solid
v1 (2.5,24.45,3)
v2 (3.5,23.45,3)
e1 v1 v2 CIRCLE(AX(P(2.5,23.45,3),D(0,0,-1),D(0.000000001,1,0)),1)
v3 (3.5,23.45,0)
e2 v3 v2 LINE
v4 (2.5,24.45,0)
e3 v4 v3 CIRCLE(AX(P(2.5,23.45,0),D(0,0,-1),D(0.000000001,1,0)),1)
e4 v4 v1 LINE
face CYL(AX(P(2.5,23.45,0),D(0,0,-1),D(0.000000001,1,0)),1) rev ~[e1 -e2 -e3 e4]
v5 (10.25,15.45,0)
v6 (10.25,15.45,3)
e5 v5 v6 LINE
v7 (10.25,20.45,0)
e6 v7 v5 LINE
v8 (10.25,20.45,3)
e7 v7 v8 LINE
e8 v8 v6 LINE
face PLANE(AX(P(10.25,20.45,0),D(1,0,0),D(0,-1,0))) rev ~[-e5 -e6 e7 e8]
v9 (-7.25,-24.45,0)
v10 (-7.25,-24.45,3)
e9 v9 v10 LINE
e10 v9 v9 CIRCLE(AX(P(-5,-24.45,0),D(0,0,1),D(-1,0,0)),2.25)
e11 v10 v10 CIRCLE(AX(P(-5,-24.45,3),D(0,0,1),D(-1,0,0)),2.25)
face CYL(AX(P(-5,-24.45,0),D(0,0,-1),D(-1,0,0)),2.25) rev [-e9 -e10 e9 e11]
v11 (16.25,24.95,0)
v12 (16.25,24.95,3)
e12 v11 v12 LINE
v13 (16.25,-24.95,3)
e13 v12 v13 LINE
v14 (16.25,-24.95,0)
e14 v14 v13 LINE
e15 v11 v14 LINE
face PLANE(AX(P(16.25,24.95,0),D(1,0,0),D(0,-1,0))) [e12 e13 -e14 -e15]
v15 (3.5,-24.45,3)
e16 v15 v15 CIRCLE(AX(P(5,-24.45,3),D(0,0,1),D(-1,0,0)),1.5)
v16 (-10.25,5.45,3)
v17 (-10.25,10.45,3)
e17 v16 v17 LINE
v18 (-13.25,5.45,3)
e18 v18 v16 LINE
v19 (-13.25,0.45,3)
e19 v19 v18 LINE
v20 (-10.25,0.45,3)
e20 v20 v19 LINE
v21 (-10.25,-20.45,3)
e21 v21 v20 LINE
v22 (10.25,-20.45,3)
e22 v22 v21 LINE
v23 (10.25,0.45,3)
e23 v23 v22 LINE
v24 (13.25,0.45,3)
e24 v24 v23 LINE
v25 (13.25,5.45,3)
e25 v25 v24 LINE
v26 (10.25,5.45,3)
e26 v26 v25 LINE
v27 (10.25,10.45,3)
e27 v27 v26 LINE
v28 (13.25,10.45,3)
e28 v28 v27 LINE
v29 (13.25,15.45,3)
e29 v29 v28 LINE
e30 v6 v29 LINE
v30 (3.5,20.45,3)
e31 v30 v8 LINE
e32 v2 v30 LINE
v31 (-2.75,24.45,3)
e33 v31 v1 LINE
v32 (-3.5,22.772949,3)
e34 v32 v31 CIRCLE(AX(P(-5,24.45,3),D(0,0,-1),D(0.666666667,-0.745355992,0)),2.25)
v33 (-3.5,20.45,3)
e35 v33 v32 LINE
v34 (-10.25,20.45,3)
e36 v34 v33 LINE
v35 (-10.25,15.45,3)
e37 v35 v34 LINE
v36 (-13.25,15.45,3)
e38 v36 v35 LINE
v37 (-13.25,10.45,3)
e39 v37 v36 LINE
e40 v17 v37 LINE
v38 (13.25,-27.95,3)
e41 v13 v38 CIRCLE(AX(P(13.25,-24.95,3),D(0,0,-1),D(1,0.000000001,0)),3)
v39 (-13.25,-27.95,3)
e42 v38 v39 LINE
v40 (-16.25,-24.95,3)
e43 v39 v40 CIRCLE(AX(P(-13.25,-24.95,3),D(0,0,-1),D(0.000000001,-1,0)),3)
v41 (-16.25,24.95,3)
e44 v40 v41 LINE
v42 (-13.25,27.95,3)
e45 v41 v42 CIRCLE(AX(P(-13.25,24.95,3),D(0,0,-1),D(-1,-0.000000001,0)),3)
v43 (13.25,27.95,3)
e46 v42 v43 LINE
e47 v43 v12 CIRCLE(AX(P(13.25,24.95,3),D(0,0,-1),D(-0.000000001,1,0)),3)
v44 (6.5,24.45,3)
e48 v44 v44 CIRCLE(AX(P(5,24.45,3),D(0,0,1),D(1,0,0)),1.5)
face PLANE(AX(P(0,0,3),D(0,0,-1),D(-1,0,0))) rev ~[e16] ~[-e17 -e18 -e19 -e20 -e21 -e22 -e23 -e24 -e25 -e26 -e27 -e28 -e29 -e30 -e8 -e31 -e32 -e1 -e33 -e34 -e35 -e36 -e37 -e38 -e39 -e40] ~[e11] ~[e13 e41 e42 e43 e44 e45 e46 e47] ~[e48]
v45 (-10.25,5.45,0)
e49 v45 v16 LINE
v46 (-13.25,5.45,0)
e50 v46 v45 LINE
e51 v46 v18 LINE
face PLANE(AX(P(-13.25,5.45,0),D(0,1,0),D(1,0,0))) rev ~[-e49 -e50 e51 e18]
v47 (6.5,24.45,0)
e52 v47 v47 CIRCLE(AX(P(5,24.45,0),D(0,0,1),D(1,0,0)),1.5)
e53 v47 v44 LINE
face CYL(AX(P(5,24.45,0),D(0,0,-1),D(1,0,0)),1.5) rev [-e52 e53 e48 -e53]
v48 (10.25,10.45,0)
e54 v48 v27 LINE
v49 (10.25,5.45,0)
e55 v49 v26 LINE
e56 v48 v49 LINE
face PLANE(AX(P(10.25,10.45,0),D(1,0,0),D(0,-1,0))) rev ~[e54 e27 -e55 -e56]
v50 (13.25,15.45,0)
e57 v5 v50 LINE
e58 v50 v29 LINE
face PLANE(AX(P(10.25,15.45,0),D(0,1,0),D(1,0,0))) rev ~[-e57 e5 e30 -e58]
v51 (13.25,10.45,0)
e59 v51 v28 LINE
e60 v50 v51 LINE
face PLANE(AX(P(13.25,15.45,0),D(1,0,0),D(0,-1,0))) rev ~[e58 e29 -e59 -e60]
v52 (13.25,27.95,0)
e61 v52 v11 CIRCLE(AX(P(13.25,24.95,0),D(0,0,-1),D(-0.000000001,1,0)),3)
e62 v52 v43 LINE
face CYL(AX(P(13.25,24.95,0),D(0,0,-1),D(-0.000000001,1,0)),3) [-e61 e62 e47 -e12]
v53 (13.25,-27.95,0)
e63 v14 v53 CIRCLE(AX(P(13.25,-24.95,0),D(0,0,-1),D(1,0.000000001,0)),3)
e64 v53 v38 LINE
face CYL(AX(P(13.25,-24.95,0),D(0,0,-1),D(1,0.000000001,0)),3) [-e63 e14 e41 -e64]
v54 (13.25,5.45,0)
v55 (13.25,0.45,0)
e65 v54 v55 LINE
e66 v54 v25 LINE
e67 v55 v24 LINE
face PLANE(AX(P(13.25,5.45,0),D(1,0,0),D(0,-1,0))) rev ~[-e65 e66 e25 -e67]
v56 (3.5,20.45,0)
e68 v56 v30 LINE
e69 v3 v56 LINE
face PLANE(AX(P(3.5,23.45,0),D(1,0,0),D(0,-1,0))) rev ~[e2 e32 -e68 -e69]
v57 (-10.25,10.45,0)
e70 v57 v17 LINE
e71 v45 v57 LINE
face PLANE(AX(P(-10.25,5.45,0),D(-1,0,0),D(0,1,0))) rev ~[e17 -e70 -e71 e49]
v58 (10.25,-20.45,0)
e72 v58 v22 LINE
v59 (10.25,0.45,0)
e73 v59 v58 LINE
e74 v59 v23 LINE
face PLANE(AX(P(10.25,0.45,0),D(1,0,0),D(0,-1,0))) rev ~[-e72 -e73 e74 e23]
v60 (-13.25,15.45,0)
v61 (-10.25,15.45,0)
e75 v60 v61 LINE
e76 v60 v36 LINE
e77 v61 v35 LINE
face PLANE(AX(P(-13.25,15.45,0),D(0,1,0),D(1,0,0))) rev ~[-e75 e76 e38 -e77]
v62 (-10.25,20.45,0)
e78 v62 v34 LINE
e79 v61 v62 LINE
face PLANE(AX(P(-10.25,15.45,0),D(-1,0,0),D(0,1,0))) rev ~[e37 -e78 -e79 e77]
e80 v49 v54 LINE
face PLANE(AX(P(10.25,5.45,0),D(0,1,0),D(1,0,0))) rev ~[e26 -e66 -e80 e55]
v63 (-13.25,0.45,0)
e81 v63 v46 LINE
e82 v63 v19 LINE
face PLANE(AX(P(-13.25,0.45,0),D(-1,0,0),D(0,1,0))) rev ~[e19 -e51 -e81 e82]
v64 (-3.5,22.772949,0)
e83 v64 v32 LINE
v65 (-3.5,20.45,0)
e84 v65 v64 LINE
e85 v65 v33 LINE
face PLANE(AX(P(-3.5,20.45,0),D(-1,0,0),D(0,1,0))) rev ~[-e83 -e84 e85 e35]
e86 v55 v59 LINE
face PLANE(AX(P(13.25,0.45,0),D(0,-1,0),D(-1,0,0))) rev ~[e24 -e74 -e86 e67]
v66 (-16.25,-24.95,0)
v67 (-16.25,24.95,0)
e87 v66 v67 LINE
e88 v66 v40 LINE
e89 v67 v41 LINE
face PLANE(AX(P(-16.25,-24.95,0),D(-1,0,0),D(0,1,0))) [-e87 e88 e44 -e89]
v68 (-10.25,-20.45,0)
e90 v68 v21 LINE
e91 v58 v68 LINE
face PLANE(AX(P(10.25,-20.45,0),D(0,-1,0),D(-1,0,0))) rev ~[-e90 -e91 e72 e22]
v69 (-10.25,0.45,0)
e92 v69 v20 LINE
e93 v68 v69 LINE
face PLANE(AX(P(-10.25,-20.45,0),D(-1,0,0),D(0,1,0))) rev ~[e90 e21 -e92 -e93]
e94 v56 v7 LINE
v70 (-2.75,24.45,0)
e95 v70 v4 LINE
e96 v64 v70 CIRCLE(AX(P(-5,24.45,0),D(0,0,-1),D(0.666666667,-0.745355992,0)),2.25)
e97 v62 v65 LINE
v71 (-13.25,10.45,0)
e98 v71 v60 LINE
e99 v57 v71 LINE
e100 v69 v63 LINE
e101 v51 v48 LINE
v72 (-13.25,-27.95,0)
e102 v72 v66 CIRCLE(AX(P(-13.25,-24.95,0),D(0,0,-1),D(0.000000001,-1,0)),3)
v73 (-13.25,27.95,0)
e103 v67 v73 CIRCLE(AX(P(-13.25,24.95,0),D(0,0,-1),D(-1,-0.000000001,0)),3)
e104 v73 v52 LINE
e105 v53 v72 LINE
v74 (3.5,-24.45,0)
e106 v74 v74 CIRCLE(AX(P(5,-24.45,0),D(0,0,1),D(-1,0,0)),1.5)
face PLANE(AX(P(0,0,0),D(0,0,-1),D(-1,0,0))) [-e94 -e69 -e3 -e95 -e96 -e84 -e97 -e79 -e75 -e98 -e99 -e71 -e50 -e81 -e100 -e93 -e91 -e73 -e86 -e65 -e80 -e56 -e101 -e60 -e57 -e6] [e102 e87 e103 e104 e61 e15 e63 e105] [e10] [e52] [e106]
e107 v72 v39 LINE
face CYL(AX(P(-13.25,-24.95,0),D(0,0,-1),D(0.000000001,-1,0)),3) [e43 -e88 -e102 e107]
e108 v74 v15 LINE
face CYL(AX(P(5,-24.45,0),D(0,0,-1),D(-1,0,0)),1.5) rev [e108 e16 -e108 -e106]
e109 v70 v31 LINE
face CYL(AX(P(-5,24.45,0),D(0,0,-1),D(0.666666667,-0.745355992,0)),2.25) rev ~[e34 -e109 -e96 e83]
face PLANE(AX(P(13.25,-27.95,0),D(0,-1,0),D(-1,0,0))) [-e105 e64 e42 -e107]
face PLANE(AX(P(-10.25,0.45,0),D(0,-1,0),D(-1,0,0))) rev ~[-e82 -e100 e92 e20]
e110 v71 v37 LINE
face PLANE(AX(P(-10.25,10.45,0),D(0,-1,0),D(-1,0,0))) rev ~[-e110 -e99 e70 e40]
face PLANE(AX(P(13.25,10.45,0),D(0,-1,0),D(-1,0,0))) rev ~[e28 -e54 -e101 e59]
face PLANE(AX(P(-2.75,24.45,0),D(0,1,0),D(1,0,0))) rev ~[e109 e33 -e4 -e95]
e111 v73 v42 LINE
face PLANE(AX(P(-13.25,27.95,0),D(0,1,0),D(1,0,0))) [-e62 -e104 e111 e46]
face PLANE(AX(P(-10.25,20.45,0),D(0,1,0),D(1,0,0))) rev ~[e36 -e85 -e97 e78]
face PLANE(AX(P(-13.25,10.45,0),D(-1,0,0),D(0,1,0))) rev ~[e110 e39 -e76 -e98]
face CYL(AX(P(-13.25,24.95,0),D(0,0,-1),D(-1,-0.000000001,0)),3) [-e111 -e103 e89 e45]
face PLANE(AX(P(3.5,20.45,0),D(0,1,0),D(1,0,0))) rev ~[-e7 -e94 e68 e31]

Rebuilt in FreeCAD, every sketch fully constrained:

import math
import FreeCAD as App
import Part
import Sketcher
from FreeCAD import Vector

doc = App.newDocument("Part")
params = doc.addObject("Spreadsheet::Sheet", "Params")
for row, (alias, value) in enumerate([
    ("sketch1_diameter", "3 mm"),
    ("sketch1_radius", "3 mm"),
    ("sketch1_radius2", "1 mm"),
    ("sketch1_diameter2", "4.5 mm"),
    ("sketch1_width", "3 mm"),
    ("pad1_length", "3 mm"),
], start=1):
    params.set(f"A{row}", alias)
    params.set(f"B{row}", "=" + value)
    params.setAlias(f"B{row}", alias)

body = doc.addObject("PartDesign::Body", "Body")

# Sketch on XY plane
sketch1 = body.newObject("Sketcher::SketchObject", "Sketch")
sketch1.AttachmentSupport = (doc.getObject("XY_Plane"), [""])
sketch1.MapMode = "FlatFace"
sketch1.addGeometry([
    Part.LineSegment(Vector(13.2, 27.9, 0), Vector(-13.2, 27.9, 0)),  # 0
    Part.ArcOfCircle(Part.Circle(Vector(-13.3, 25, 0), Vector(0, 0, 1), 3), math.radians(90), math.radians(180)),  # 1
    Part.LineSegment(Vector(-16.2, 24.9, 0), Vector(-16.2, -24.9, 0)),  # 2
    Part.ArcOfCircle(Part.Circle(Vector(-13.3, -25, 0), Vector(0, 0, 1), 3), math.radians(180), math.radians(270)),  # 3
    Part.LineSegment(Vector(-13.2, -27.9, 0), Vector(13.2, -27.9, 0)),  # 4
    Part.ArcOfCircle(Part.Circle(Vector(13.3, -25, 0), Vector(0, 0, 1), 3), math.radians(-90), math.radians(0)),  # 5
    Part.LineSegment(Vector(16.2, -24.9, 0), Vector(16.2, 24.9, 0)),  # 6
    Part.ArcOfCircle(Part.Circle(Vector(13.3, 25, 0), Vector(0, 0, 1), 3), math.radians(0), math.radians(90)),  # 7
    Part.Circle(Vector(5, -24.4, 0), Vector(0, 0, 1), 1.5),  # 8
    Part.Circle(Vector(-5, -24.4, 0), Vector(0, 0, 1), 2.2),  # 9
    Part.Circle(Vector(5, 24.4, 0), Vector(0, 0, 1), 1.5),  # 10
    Part.LineSegment(Vector(-10.2, 20.4, 0), Vector(-3.5, 20.4, 0)),  # 11
    Part.LineSegment(Vector(-3.5, 20.4, 0), Vector(-3.5, 22.8, 0)),  # 12
    Part.ArcOfCircle(Part.Circle(Vector(-5, 24.4, 0), Vector(0, 0, 1), 2.2), math.radians(0), math.radians(312)),  # 13
    Part.LineSegment(Vector(-2.8, 24.4, 0), Vector(2.5, 24.4, 0)),  # 14
    Part.ArcOfCircle(Part.Circle(Vector(2.5, 23.4, 0), Vector(0, 0, 1), 1), math.radians(0), math.radians(90)),  # 15
    Part.LineSegment(Vector(3.5, 23.4, 0), Vector(3.5, 20.4, 0)),  # 16
    Part.LineSegment(Vector(3.5, 20.4, 0), Vector(10.2, 20.4, 0)),  # 17
    Part.LineSegment(Vector(10.2, 20.4, 0), Vector(10.2, 15.4, 0)),  # 18
    Part.LineSegment(Vector(10.2, 15.4, 0), Vector(13.2, 15.4, 0)),  # 19
    Part.LineSegment(Vector(13.2, 15.4, 0), Vector(13.2, 10.4, 0)),  # 20
    Part.LineSegment(Vector(13.2, 10.4, 0), Vector(10.2, 10.4, 0)),  # 21
    Part.LineSegment(Vector(10.2, 10.4, 0), Vector(10.2, 5.5, 0)),  # 22
    Part.LineSegment(Vector(10.2, 5.5, 0), Vector(13.2, 5.5, 0)),  # 23
    Part.LineSegment(Vector(13.2, 5.5, 0), Vector(13.2, 0.5, 0)),  # 24
    Part.LineSegment(Vector(13.2, 0.5, 0), Vector(10.2, 0.5, 0)),  # 25
    Part.LineSegment(Vector(10.2, 0.5, 0), Vector(10.2, -20.4, 0)),  # 26
    Part.LineSegment(Vector(10.2, -20.4, 0), Vector(-10.2, -20.4, 0)),  # 27
    Part.LineSegment(Vector(-10.2, -20.4, 0), Vector(-10.2, 0.5, 0)),  # 28
    Part.LineSegment(Vector(-10.2, 0.5, 0), Vector(-13.2, 0.5, 0)),  # 29
    Part.LineSegment(Vector(-13.2, 0.5, 0), Vector(-13.2, 5.5, 0)),  # 30
    Part.LineSegment(Vector(-13.2, 5.5, 0), Vector(-10.2, 5.5, 0)),  # 31
    Part.LineSegment(Vector(-10.2, 5.5, 0), Vector(-10.2, 10.4, 0)),  # 32
    Part.LineSegment(Vector(-10.2, 10.4, 0), Vector(-13.2, 10.4, 0)),  # 33
    Part.LineSegment(Vector(-13.2, 10.4, 0), Vector(-13.2, 15.4, 0)),  # 34
    Part.LineSegment(Vector(-13.2, 15.4, 0), Vector(-10.2, 15.4, 0)),  # 35
    Part.LineSegment(Vector(-10.2, 15.4, 0), Vector(-10.2, 20.4, 0)),  # 36
], False)
sketch1.addConstraint([
    Sketcher.Constraint("Tangent", 0, 2, 1, 1),
    Sketcher.Constraint("Tangent", 1, 2, 2, 1),
    Sketcher.Constraint("Tangent", 2, 2, 3, 1),
    Sketcher.Constraint("Tangent", 3, 2, 4, 1),
    Sketcher.Constraint("Tangent", 4, 2, 5, 1),
    Sketcher.Constraint("Tangent", 5, 2, 6, 1),
    Sketcher.Constraint("Tangent", 6, 2, 7, 1),
    Sketcher.Constraint("Tangent", 7, 2, 0, 1),
    Sketcher.Constraint("Coincident", 11, 2, 12, 1),
    Sketcher.Constraint("Coincident", 12, 2, 13, 2),
    Sketcher.Constraint("Coincident", 13, 1, 14, 1),
    Sketcher.Constraint("Tangent", 14, 2, 15, 2),
    Sketcher.Constraint("Tangent", 15, 1, 16, 1),
    Sketcher.Constraint("Coincident", 16, 2, 17, 1),
    Sketcher.Constraint("Coincident", 17, 2, 18, 1),
    Sketcher.Constraint("Coincident", 18, 2, 19, 1),
    Sketcher.Constraint("Coincident", 19, 2, 20, 1),
    Sketcher.Constraint("Coincident", 20, 2, 21, 1),
    Sketcher.Constraint("Coincident", 21, 2, 22, 1),
    Sketcher.Constraint("Coincident", 22, 2, 23, 1),
    Sketcher.Constraint("Coincident", 23, 2, 24, 1),
    Sketcher.Constraint("Coincident", 24, 2, 25, 1),
    Sketcher.Constraint("Coincident", 25, 2, 26, 1),
    Sketcher.Constraint("Coincident", 26, 2, 27, 1),
    Sketcher.Constraint("Coincident", 27, 2, 28, 1),
    Sketcher.Constraint("Coincident", 28, 2, 29, 1),
    Sketcher.Constraint("Coincident", 29, 2, 30, 1),
    Sketcher.Constraint("Coincident", 30, 2, 31, 1),
    Sketcher.Constraint("Coincident", 31, 2, 32, 1),
    Sketcher.Constraint("Coincident", 32, 2, 33, 1),
    Sketcher.Constraint("Coincident", 33, 2, 34, 1),
    Sketcher.Constraint("Coincident", 34, 2, 35, 1),
    Sketcher.Constraint("Coincident", 35, 2, 36, 1),
    Sketcher.Constraint("Coincident", 36, 2, 11, 1),
    Sketcher.Constraint("Horizontal", 0),
    Sketcher.Constraint("Vertical", 2),
    Sketcher.Constraint("Horizontal", 4),
    Sketcher.Constraint("Vertical", 6),
    Sketcher.Constraint("Horizontal", 11),
    Sketcher.Constraint("Vertical", 12),
    Sketcher.Constraint("Horizontal", 14),
    Sketcher.Constraint("Vertical", 16),
    Sketcher.Constraint("Horizontal", 17),
    Sketcher.Constraint("Vertical", 18),
    Sketcher.Constraint("Horizontal", 19),
    Sketcher.Constraint("Vertical", 20),
    Sketcher.Constraint("Horizontal", 21),
    Sketcher.Constraint("Vertical", 22),
    Sketcher.Constraint("Horizontal", 23),
    Sketcher.Constraint("Vertical", 24),
    Sketcher.Constraint("Horizontal", 25),
    Sketcher.Constraint("Vertical", 26),
    Sketcher.Constraint("Horizontal", 27),
    Sketcher.Constraint("Vertical", 28),
    Sketcher.Constraint("Horizontal", 29),
    Sketcher.Constraint("Vertical", 30),
    Sketcher.Constraint("Horizontal", 31),
    Sketcher.Constraint("Vertical", 32),
    Sketcher.Constraint("Horizontal", 33),
    Sketcher.Constraint("Vertical", 34),
    Sketcher.Constraint("Horizontal", 35),
    Sketcher.Constraint("Vertical", 36),
    Sketcher.Constraint("Equal", 1, 3),
    Sketcher.Constraint("Equal", 3, 5),
    Sketcher.Constraint("Equal", 5, 7),
    Sketcher.Constraint("Equal", 8, 10),
    Sketcher.Constraint("Equal", 9, 13),
    Sketcher.Constraint("Symmetric", 1, 3, 5, 3, -1, 1),
    Sketcher.Constraint("Symmetric", 9, 3, 10, 3, -1, 1),
    Sketcher.Constraint("Symmetric", 8, 3, 13, 3, -1, 1),
    Sketcher.Constraint("Symmetric", 17, 2, 27, 2, -1, 1),
    Sketcher.Constraint("Symmetric", 26, 2, 36, 2, -1, 1),
    Sketcher.Constraint("Symmetric", 8, 3, 9, 3, -2),
    Sketcher.Constraint("Symmetric", 25, 2, 28, 2, -2),
    Sketcher.Constraint("Symmetric", 23, 2, 30, 2, -2),
    Sketcher.Constraint("Symmetric", 21, 2, 32, 2, -2),
    Sketcher.Constraint("Symmetric", 19, 2, 34, 2, -2),
    Sketcher.Constraint("Horizontal", 10, 3, 13, 1),
    Sketcher.Constraint("Vertical", 7, 2, 19, 2),
    Sketcher.Constraint("Vertical", 18, 2, 21, 2),
    Sketcher.Constraint("Vertical", 20, 2, 23, 2),
    Sketcher.Constraint("Equal", 11, 17),
    Sketcher.Constraint("Equal", 35, 16),
    Sketcher.Constraint("Equal", 18, 20),
    Sketcher.Constraint("Equal", 20, 22),
    Sketcher.Constraint("Equal", 22, 24),
    Sketcher.Constraint("Diameter", 8, 3.0),
    Sketcher.Constraint("Radius", 1, 3.0),
    Sketcher.Constraint("Radius", 15, 1.0),
    Sketcher.Constraint("Diameter", 9, 4.5),
    Sketcher.Constraint("DistanceX", 19, 1, 19, 2, 3.0),
    Sketcher.Constraint("DistanceY", 18, 2, 18, 1, 5.0),
    Sketcher.Constraint("DistanceX", 0, 2, 0, 1, 26.5),
    Sketcher.Constraint("DistanceY", 2, 2, 2, 1, 49.9),
    Sketcher.Constraint("DistanceY", 26, 2, 26, 1, 20.9),
    Sketcher.Constraint("DistanceX", -1, 1, 8, 3, 5.0),
    Sketcher.Constraint("DistanceX", 11, 2, 15, 3, 6.0),
])
sketch1.setExpression("Constraints[86]", "Params.sketch1_diameter")
sketch1.setExpression("Constraints[87]", "Params.sketch1_radius")
sketch1.setExpression("Constraints[88]", "Params.sketch1_radius2")
sketch1.setExpression("Constraints[89]", "Params.sketch1_diameter2")
sketch1.setExpression("Constraints[90]", "Params.sketch1_width")
pad1 = body.newObject("PartDesign::Pad", "Pad")
pad1.Profile = sketch1
pad1.setExpression("Length", "Params.pad1_length")

doc.recompute()
